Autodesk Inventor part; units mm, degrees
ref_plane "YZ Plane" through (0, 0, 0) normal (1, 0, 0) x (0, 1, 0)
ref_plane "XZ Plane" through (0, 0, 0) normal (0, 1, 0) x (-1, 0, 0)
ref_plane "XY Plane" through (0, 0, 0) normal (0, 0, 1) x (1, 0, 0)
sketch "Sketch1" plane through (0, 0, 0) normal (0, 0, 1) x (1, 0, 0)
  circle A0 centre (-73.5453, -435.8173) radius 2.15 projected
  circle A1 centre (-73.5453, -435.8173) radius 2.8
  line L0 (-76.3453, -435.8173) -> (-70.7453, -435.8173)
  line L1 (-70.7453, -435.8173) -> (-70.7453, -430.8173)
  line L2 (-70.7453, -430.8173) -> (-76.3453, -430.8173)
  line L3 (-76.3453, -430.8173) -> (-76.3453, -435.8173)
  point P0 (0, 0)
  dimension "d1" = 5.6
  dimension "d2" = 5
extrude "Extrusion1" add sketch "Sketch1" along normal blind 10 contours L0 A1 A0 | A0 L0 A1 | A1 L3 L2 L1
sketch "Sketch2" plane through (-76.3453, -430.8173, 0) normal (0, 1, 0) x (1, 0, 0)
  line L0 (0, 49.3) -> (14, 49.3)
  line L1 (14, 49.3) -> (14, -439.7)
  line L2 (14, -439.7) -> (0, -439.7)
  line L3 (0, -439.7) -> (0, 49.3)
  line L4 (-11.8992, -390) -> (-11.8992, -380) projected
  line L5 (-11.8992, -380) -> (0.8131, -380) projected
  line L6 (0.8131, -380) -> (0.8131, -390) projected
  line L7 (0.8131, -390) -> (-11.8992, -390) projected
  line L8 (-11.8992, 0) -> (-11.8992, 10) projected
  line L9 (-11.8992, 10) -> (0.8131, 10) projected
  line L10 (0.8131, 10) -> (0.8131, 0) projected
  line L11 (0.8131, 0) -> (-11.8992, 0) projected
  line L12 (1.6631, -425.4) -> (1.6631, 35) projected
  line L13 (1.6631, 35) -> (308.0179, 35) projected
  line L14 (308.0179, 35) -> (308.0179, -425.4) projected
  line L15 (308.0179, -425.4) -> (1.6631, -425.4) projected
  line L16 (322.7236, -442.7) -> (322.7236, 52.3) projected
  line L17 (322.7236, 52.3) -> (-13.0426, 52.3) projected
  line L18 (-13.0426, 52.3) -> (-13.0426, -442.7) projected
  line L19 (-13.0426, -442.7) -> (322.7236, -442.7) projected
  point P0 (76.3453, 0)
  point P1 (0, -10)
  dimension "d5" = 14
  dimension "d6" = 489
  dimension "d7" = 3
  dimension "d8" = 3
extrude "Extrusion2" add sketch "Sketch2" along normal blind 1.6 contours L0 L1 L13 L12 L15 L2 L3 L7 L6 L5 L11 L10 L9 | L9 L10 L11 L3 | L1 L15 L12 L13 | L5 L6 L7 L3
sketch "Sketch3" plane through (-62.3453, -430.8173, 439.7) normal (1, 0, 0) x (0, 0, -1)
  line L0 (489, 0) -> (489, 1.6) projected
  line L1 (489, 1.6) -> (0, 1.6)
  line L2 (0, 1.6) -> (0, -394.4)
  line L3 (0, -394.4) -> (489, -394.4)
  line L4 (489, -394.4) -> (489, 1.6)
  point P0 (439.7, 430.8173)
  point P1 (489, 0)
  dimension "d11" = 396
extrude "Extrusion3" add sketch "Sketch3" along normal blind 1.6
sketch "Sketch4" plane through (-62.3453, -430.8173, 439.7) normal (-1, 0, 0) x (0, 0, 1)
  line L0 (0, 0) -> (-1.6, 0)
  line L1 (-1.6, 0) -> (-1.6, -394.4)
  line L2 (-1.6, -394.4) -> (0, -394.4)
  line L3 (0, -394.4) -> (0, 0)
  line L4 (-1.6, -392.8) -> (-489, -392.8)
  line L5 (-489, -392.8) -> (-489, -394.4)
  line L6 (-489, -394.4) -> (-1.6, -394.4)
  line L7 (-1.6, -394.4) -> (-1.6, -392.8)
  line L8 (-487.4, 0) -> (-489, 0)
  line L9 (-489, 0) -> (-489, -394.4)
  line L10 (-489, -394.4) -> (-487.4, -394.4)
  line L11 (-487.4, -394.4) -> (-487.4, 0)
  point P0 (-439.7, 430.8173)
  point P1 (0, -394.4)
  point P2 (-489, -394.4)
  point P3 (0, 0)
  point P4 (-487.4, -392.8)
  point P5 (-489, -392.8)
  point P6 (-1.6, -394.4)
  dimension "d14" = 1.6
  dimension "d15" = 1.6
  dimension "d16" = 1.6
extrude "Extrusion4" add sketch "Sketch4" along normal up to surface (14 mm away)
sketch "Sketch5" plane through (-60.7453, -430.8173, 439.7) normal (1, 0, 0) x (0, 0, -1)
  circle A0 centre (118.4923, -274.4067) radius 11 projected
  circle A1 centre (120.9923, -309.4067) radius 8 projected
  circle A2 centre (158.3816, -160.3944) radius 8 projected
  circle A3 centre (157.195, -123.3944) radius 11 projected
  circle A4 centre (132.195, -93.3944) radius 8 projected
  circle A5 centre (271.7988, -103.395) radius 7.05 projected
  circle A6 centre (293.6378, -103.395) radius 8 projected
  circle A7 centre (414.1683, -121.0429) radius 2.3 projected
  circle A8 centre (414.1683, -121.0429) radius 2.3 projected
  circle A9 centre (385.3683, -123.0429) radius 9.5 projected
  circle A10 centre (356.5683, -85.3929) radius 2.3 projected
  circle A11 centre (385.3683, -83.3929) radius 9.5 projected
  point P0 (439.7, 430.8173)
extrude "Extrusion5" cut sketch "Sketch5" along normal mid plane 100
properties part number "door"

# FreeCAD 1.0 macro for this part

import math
import FreeCAD as App
import Part
import Sketcher
Q = App.Units.Quantity


def add_polygon(sketch, points):
    """Adds a closed chain of lines whose ends are joined by coincident constraints."""
    first, n = sketch.GeometryCount, len(points)
    for a, b in zip(points, points[1:] + points[:1]):
        sketch.addGeometry(Part.LineSegment(App.Vector(*a, 0), App.Vector(*b, 0)), False)
    for i in range(n):
        sketch.addConstraint(Sketcher.Constraint("Coincident", first + i, 2, first + (i + 1) % n, 1))

doc = App.newDocument("Part")
body = doc.addObject("PartDesign::Body", "Body")

sketch1 = body.newObject("Sketcher::SketchObject", "Sketch")
sketch1.AttachmentSupport = (doc.getObject("XY_Plane"), [""])
sketch1.MapMode = "FlatFace"
sketch1.addGeometry([
    Part.ArcOfCircle(Part.Circle(App.Vector(-73.5, -435.8, 0), App.Vector(0, 0, 1), 2.8), math.radians(180), math.radians(360)),
    Part.LineSegment(App.Vector(-70.7, -435.8, 0), App.Vector(-70.7, -430.8, 0)),
    Part.LineSegment(App.Vector(-70.7, -430.8, 0), App.Vector(-76.3, -430.8, 0)),
    Part.LineSegment(App.Vector(-76.3, -430.8, 0), App.Vector(-76.3, -435.8, 0)),
    Part.Circle(App.Vector(-73.5, -435.8, 0), App.Vector(0, 0, 1), 2.1),
], False)
sketch1.addConstraint([
    Sketcher.Constraint("Tangent", 0, 2, 1, 1),
    Sketcher.Constraint("Coincident", 1, 2, 2, 1),
    Sketcher.Constraint("Coincident", 2, 2, 3, 1),
    Sketcher.Constraint("Tangent", 3, 2, 0, 1),
    Sketcher.Constraint("Vertical", 1),
    Sketcher.Constraint("Horizontal", 2),
    Sketcher.Constraint("Vertical", 3),
    Sketcher.Constraint("Coincident", 4, 3, 0, 3),
    Sketcher.Constraint("Radius", 0, Q("2.8 mm")),
    Sketcher.Constraint("DistanceY", 1, 1, 1, 2, Q("5 mm")),
    Sketcher.Constraint("Diameter", 4, Q("4.3 mm")),
    Sketcher.Constraint("DistanceX", 0, 3, -1, 1, Q("73.5453 mm")),
    Sketcher.Constraint("DistanceY", 0, 3, -1, 1, Q("435.8173 mm")),
])
pad1 = body.newObject("PartDesign::Pad", "Pad")
pad1.Profile = sketch1
pad1.Length = 10

sketch2 = body.newObject("Sketcher::SketchObject", "Sketch001")
sketch2.AttachmentSupport = (doc.getObject("XZ_Plane"), [""])
sketch2.MapMode = "FlatFace"
sketch2.AttachmentOffset = App.Placement(App.Vector(0, 0, 430.8173), App.Rotation())
add_polygon(sketch2, [(-62, -49), (-76, -49), (-76, 440), (-62, 440)])
sketch2.addConstraint([
    Sketcher.Constraint("Horizontal", 0),
    Sketcher.Constraint("Vertical", 1),
    Sketcher.Constraint("Horizontal", 2),
    Sketcher.Constraint("Vertical", 3),
    Sketcher.Constraint("DistanceX", 0, 2, 0, 1, Q("14 mm")),
    Sketcher.Constraint("DistanceY", 1, 1, 1, 2, Q("489 mm")),
    Sketcher.Constraint("DistanceY", 0, 2, -1, 1, Q("49.3 mm")),
    Sketcher.Constraint("DistanceX", 0, 2, -1, 1, Q("76.3453 mm")),
])
pad2 = body.newObject("PartDesign::Pad", "Pad001")
pad2.Profile = sketch2
pad2.Length = 1.6
pad2.Reversed = True

sketch3 = body.newObject("Sketcher::SketchObject", "Sketch002")
sketch3.AttachmentSupport = (doc.getObject("YZ_Plane"), [""])
sketch3.MapMode = "FlatFace"
sketch3.AttachmentOffset = App.Placement(App.Vector(0, 0, -62.3453), App.Rotation())
add_polygon(sketch3, [(-825, -49), (-429, -49), (-429, 440), (-825, 440)])
sketch3.addConstraint([
    Sketcher.Constraint("Horizontal", 0),
    Sketcher.Constraint("Vertical", 1),
    Sketcher.Constraint("Horizontal", 2),
    Sketcher.Constraint("Vertical", 3),
    Sketcher.Constraint("DistanceX", 0, 1, 0, 2, Q("396 mm")),
    Sketcher.Constraint("DistanceY", 1, 1, 1, 2, Q("489 mm")),
    Sketcher.Constraint("DistanceY", 0, 2, -1, 1, Q("49.3 mm")),
    Sketcher.Constraint("DistanceX", 0, 2, -1, 1, Q("429.2173 mm")),
])
pad3 = body.newObject("PartDesign::Pad", "Pad002")
pad3.Profile = sketch3
pad3.Length = 1.6

sketch4 = body.newObject("Sketcher::SketchObject", "Sketch003")
sketch4.AttachmentSupport = (doc.getObject("YZ_Plane"), [""])
sketch4.MapMode = "FlatFace"
sketch4.AttachmentOffset = App.Placement(App.Vector(0, 0, -62.3453), App.Rotation())
add_polygon(sketch4, [(-825.2, 439.7), (-430.8, 439.7), (-430.8, 438.1), (-823.6, 438.1), (-823.6, -47.7), (-430.8, -47.7), (-430.8, -49.3), (-825.2, -49.3)])
sketch4.addConstraint([
    Sketcher.Constraint("Horizontal", 0),
    Sketcher.Constraint("Vertical", 1),
    Sketcher.Constraint("Horizontal", 2),
    Sketcher.Constraint("Vertical", 3),
    Sketcher.Constraint("Horizontal", 4),
    Sketcher.Constraint("Vertical", 5),
    Sketcher.Constraint("Horizontal", 6),
    Sketcher.Constraint("Vertical", 7),
    Sketcher.Constraint("Vertical", 1, 2, 4, 2),
    Sketcher.Constraint("Equal", 1, 5),
    Sketcher.Constraint("DistanceY", 1, 2, 1, 1, Q("1.6 mm")),
    Sketcher.Constraint("DistanceX", 6, 2, 3, 2, Q("1.6 mm")),
    Sketcher.Constraint("DistanceY", 7, 1, 7, 2, Q("489 mm")),
    Sketcher.Constraint("DistanceX", 0, 1, 0, 2, Q("394.4 mm")),
    Sketcher.Constraint("DistanceY", -1, 1, 0, 2, Q("439.7 mm")),
    Sketcher.Constraint("DistanceX", 0, 2, -1, 1, Q("430.8173 mm")),
])
pad4 = body.newObject("PartDesign::Pad", "Pad003")
pad4.Profile = sketch4
pad4.Length = 14
pad4.Reversed = True

sketch5 = body.newObject("Sketcher::SketchObject", "Sketch004")
sketch5.AttachmentSupport = (doc.getObject("YZ_Plane"), [""])
sketch5.MapMode = "FlatFace"
sketch5.AttachmentOffset = App.Placement(App.Vector(0, 0, -60.7453), App.Rotation())
sketch5.addGeometry([
    Part.Circle(App.Vector(-705.2, 321.2, 0), App.Vector(0, 0, 1), 11),
    Part.Circle(App.Vector(-740.2, 318.7, 0), App.Vector(0, 0, 1), 8),
    Part.Circle(App.Vector(-591.2, 281.3, 0), App.Vector(0, 0, 1), 8),
    Part.Circle(App.Vector(-554.2, 282.5, 0), App.Vector(0, 0, 1), 11),
    Part.Circle(App.Vector(-524.2, 307.5, 0), App.Vector(0, 0, 1), 8),
    Part.Circle(App.Vector(-534.2, 167.9, 0), App.Vector(0, 0, 1), 7),
    Part.Circle(App.Vector(-534.2, 146.1, 0), App.Vector(0, 0, 1), 8),
    Part.Circle(App.Vector(-551.9, 25.5, 0), App.Vector(0, 0, 1), 2.3),
    Part.Circle(App.Vector(-553.9, 54.3, 0), App.Vector(0, 0, 1), 9.5),
    Part.Circle(App.Vector(-516.2, 83.1, 0), App.Vector(0, 0, 1), 2.3),
    Part.Circle(App.Vector(-514.2, 54.3, 0), App.Vector(0, 0, 1), 9.5),
], False)
sketch5.addConstraint([
    Sketcher.Constraint("Equal", 1, 2),
    Sketcher.Constraint("Equal", 0, 3),
    Sketcher.Constraint("Equal", 2, 4),
    Sketcher.Constraint("Equal", 4, 6),
    Sketcher.Constraint("Equal", 7, 9),
    Sketcher.Constraint("Equal", 8, 10),
    Sketcher.Constraint("Horizontal", 8, 3, 10, 3),
    Sketcher.Constraint("Vertical", 5, 3, 6, 3),
    Sketcher.Constraint("Diameter", 0, Q("22 mm")),
    Sketcher.Constraint("Diameter", 1, Q("16 mm")),
    Sketcher.Constraint("Diameter", 8, Q("19 mm")),
    Sketcher.Constraint("Diameter", 5, Q("14.1 mm")),
    Sketcher.Constraint("Diameter", 7, Q("4.6 mm")),
    Sketcher.Constraint("DistanceX", 1, 3, 0, 3, Q("35 mm")),
    Sketcher.Constraint("DistanceX", 2, 3, 3, 3, Q("37 mm")),
    Sketcher.Constraint("DistanceX", 3, 3, 4, 3, Q("30 mm")),
    Sketcher.Constraint("DistanceY", 3, 3, 4, 3, Q("25 mm")),
    Sketcher.Constraint("DistanceX", 8, 3, 7, 3, Q("2 mm")),
    Sketcher.Constraint("DistanceX", 9, 3, 10, 3, Q("2 mm")),
    Sketcher.Constraint("DistanceY", 1, 3, 0, 3, Q("2.5 mm")),
    Sketcher.Constraint("DistanceY", 7, 3, 8, 3, Q("28.8 mm")),
    Sketcher.Constraint("DistanceY", 8, 3, 9, 3, Q("28.8 mm")),
    Sketcher.Constraint("DistanceX", 8, 3, 9, 3, Q("37.65 mm")),
    Sketcher.Constraint("DistanceX", 0, 3, -1, 1, Q("705.224 mm")),
    Sketcher.Constraint("DistanceY", -1, 1, 3, 3, Q("282.505 mm")),
    Sketcher.Constraint("DistanceY", 6, 3, 5, 3, Q("21.839 mm")),
    Sketcher.Constraint("DistanceX", 7, 3, 6, 3, Q("17.648 mm")),
    Sketcher.Constraint("DistanceY", -1, 1, 0, 3, Q("321.2077 mm")),
    Sketcher.Constraint("DistanceX", 2, 3, -1, 1, Q("591.2117 mm")),
    Sketcher.Constraint("DistanceY", -1, 1, 2, 3, Q("281.3184 mm")),
    Sketcher.Constraint("DistanceX", 5, 3, -1, 1, Q("534.2123 mm")),
    Sketcher.Constraint("DistanceY", -1, 1, 5, 3, Q("167.9012 mm")),
    Sketcher.Constraint("DistanceY", -1, 1, 7, 3, Q("25.5317 mm")),
])
pocket1 = body.newObject("PartDesign::Pocket", "Pocket")
pocket1.Profile = sketch5
pocket1.Length = 100
pocket1.Midplane = True

doc.recompute()
